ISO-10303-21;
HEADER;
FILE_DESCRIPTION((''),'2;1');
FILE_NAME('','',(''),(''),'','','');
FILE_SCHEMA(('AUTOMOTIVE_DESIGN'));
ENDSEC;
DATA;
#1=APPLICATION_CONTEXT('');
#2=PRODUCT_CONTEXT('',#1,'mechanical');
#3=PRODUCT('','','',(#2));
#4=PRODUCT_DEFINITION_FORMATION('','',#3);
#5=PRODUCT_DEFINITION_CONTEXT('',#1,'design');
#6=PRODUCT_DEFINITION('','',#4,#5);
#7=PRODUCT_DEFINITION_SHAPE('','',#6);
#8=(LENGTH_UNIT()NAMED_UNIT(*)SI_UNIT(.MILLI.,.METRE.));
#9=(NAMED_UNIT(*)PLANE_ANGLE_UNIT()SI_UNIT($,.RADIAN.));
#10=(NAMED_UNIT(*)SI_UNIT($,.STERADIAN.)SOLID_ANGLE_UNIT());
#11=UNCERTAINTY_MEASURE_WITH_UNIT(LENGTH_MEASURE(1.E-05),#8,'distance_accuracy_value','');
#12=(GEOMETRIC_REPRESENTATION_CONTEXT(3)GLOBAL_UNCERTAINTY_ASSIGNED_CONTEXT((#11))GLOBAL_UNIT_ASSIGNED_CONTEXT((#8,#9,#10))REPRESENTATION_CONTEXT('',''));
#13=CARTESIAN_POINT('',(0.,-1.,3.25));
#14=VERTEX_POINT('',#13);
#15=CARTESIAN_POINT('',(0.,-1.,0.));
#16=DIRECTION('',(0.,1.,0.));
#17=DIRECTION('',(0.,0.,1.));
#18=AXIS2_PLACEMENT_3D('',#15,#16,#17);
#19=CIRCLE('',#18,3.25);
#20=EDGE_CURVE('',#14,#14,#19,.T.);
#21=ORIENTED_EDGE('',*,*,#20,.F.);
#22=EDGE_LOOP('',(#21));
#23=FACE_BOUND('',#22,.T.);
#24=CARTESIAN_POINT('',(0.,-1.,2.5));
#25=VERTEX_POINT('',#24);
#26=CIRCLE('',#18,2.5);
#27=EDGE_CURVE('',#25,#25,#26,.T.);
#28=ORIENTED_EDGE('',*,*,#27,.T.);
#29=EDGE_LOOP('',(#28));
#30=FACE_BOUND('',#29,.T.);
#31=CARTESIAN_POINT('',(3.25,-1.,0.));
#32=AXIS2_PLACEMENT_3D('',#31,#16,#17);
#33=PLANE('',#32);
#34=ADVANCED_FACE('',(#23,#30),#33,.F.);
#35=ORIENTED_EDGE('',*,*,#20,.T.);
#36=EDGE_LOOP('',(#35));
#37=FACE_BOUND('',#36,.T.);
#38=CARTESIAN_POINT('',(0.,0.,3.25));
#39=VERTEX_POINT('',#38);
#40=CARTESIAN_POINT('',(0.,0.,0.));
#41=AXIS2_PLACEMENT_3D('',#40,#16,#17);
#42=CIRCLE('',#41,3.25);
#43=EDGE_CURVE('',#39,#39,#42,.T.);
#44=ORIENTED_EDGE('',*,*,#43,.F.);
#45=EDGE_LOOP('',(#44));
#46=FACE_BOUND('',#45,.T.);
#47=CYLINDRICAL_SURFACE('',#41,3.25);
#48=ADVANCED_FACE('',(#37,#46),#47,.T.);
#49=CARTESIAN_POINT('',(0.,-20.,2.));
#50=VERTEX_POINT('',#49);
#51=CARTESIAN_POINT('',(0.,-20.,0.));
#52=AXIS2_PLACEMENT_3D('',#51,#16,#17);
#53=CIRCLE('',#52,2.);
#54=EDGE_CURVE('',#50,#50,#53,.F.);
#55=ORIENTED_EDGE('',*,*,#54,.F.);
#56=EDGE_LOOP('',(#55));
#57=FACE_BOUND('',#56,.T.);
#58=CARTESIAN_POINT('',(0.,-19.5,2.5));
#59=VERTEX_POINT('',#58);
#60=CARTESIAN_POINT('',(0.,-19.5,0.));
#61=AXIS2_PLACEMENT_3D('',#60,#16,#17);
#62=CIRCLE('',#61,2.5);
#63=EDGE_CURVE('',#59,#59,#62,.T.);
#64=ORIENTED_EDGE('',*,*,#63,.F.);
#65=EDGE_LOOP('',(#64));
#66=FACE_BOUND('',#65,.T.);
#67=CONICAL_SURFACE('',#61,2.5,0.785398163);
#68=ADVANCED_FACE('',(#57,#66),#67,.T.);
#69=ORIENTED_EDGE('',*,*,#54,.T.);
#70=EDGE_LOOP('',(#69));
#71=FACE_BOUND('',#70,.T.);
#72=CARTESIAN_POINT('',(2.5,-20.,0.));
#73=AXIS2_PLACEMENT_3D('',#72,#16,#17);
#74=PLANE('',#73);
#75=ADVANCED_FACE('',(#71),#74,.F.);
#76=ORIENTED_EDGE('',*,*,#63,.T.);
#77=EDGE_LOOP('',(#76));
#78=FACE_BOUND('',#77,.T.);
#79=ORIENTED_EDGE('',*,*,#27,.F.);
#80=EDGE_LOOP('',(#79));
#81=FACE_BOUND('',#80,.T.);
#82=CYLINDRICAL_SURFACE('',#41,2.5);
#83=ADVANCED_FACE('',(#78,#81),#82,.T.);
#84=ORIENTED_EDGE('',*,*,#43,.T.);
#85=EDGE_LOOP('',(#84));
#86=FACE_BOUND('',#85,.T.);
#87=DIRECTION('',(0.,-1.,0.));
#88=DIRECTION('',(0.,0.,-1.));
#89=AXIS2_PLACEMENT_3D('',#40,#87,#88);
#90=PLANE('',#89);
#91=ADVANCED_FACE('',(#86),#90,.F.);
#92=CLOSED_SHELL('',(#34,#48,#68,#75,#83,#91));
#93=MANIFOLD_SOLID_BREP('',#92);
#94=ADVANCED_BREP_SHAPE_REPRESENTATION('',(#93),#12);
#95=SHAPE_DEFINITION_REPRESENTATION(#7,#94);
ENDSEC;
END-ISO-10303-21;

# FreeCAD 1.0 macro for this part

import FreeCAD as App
import Part
import Sketcher

V = App.Vector


def edges_at(feature, points):
    """Names of the edges that pass closest to the given points."""
    edges = feature.Shape.Edges
    near = lambda p: min(range(len(edges)), key=lambda i: edges[i].distToShape(Part.Vertex(*p))[0])
    return sorted({f"Edge{near(p) + 1}" for p in points})

doc = App.newDocument("Part")
body = doc.addObject("PartDesign::Body", "Body")

sketch1 = body.newObject("Sketcher::SketchObject", "Sketch")
sketch1.AttachmentSupport = (doc.getObject("XY_Plane"), [""])
sketch1.MapMode = "FlatFace"
sketch1.addGeometry([
    Part.LineSegment(V(3.2, 0, 0), V(0, 0, 0)),
    Part.LineSegment(V(0, 0, 0), V(0, -20, 0)),
    Part.LineSegment(V(0, -20, 0), V(2.5, -20, 0)),
    Part.LineSegment(V(2.5, -20, 0), V(2.5, -1, 0)),
    Part.LineSegment(V(2.5, -1, 0), V(3.2, -1, 0)),
    Part.LineSegment(V(3.2, -1, 0), V(3.2, 0, 0)),
], False)
sketch1.addConstraint([
    Sketcher.Constraint("Coincident", 0, 2, 1, 1),
    Sketcher.Constraint("Coincident", 1, 2, 2, 1),
    Sketcher.Constraint("Coincident", 2, 2, 3, 1),
    Sketcher.Constraint("Coincident", 3, 2, 4, 1),
    Sketcher.Constraint("Coincident", 4, 2, 5, 1),
    Sketcher.Constraint("Coincident", 5, 2, 0, 1),
    Sketcher.Constraint("Horizontal", 0),
    Sketcher.Constraint("Vertical", 1),
    Sketcher.Constraint("Horizontal", 2),
    Sketcher.Constraint("Vertical", 3),
    Sketcher.Constraint("Horizontal", 4),
    Sketcher.Constraint("Vertical", 5),
    Sketcher.Constraint("Coincident", 0, 2, -1, 1),
    Sketcher.Constraint("DistanceY", 1, 2, 1, 1, 20.0),
    Sketcher.Constraint("DistanceY", 3, 1, 3, 2, 19.0),
    Sketcher.Constraint("DistanceX", 2, 1, 2, 2, 2.5),
    Sketcher.Constraint("DistanceX", 0, 2, 0, 1, 3.25),
])
revolution = body.newObject("PartDesign::Revolution", "Revolution")
revolution.Profile = sketch1
revolution.ReferenceAxis = (sketch1, ["V_Axis"])
revolution.Angle = 360
doc.recompute()

chamfer = body.newObject("PartDesign::Chamfer", "Chamfer")
chamfer.Base = (revolution, edges_at(revolution, [(0, -20, -2.5)]))
chamfer.Size = 0.5

doc.recompute()
